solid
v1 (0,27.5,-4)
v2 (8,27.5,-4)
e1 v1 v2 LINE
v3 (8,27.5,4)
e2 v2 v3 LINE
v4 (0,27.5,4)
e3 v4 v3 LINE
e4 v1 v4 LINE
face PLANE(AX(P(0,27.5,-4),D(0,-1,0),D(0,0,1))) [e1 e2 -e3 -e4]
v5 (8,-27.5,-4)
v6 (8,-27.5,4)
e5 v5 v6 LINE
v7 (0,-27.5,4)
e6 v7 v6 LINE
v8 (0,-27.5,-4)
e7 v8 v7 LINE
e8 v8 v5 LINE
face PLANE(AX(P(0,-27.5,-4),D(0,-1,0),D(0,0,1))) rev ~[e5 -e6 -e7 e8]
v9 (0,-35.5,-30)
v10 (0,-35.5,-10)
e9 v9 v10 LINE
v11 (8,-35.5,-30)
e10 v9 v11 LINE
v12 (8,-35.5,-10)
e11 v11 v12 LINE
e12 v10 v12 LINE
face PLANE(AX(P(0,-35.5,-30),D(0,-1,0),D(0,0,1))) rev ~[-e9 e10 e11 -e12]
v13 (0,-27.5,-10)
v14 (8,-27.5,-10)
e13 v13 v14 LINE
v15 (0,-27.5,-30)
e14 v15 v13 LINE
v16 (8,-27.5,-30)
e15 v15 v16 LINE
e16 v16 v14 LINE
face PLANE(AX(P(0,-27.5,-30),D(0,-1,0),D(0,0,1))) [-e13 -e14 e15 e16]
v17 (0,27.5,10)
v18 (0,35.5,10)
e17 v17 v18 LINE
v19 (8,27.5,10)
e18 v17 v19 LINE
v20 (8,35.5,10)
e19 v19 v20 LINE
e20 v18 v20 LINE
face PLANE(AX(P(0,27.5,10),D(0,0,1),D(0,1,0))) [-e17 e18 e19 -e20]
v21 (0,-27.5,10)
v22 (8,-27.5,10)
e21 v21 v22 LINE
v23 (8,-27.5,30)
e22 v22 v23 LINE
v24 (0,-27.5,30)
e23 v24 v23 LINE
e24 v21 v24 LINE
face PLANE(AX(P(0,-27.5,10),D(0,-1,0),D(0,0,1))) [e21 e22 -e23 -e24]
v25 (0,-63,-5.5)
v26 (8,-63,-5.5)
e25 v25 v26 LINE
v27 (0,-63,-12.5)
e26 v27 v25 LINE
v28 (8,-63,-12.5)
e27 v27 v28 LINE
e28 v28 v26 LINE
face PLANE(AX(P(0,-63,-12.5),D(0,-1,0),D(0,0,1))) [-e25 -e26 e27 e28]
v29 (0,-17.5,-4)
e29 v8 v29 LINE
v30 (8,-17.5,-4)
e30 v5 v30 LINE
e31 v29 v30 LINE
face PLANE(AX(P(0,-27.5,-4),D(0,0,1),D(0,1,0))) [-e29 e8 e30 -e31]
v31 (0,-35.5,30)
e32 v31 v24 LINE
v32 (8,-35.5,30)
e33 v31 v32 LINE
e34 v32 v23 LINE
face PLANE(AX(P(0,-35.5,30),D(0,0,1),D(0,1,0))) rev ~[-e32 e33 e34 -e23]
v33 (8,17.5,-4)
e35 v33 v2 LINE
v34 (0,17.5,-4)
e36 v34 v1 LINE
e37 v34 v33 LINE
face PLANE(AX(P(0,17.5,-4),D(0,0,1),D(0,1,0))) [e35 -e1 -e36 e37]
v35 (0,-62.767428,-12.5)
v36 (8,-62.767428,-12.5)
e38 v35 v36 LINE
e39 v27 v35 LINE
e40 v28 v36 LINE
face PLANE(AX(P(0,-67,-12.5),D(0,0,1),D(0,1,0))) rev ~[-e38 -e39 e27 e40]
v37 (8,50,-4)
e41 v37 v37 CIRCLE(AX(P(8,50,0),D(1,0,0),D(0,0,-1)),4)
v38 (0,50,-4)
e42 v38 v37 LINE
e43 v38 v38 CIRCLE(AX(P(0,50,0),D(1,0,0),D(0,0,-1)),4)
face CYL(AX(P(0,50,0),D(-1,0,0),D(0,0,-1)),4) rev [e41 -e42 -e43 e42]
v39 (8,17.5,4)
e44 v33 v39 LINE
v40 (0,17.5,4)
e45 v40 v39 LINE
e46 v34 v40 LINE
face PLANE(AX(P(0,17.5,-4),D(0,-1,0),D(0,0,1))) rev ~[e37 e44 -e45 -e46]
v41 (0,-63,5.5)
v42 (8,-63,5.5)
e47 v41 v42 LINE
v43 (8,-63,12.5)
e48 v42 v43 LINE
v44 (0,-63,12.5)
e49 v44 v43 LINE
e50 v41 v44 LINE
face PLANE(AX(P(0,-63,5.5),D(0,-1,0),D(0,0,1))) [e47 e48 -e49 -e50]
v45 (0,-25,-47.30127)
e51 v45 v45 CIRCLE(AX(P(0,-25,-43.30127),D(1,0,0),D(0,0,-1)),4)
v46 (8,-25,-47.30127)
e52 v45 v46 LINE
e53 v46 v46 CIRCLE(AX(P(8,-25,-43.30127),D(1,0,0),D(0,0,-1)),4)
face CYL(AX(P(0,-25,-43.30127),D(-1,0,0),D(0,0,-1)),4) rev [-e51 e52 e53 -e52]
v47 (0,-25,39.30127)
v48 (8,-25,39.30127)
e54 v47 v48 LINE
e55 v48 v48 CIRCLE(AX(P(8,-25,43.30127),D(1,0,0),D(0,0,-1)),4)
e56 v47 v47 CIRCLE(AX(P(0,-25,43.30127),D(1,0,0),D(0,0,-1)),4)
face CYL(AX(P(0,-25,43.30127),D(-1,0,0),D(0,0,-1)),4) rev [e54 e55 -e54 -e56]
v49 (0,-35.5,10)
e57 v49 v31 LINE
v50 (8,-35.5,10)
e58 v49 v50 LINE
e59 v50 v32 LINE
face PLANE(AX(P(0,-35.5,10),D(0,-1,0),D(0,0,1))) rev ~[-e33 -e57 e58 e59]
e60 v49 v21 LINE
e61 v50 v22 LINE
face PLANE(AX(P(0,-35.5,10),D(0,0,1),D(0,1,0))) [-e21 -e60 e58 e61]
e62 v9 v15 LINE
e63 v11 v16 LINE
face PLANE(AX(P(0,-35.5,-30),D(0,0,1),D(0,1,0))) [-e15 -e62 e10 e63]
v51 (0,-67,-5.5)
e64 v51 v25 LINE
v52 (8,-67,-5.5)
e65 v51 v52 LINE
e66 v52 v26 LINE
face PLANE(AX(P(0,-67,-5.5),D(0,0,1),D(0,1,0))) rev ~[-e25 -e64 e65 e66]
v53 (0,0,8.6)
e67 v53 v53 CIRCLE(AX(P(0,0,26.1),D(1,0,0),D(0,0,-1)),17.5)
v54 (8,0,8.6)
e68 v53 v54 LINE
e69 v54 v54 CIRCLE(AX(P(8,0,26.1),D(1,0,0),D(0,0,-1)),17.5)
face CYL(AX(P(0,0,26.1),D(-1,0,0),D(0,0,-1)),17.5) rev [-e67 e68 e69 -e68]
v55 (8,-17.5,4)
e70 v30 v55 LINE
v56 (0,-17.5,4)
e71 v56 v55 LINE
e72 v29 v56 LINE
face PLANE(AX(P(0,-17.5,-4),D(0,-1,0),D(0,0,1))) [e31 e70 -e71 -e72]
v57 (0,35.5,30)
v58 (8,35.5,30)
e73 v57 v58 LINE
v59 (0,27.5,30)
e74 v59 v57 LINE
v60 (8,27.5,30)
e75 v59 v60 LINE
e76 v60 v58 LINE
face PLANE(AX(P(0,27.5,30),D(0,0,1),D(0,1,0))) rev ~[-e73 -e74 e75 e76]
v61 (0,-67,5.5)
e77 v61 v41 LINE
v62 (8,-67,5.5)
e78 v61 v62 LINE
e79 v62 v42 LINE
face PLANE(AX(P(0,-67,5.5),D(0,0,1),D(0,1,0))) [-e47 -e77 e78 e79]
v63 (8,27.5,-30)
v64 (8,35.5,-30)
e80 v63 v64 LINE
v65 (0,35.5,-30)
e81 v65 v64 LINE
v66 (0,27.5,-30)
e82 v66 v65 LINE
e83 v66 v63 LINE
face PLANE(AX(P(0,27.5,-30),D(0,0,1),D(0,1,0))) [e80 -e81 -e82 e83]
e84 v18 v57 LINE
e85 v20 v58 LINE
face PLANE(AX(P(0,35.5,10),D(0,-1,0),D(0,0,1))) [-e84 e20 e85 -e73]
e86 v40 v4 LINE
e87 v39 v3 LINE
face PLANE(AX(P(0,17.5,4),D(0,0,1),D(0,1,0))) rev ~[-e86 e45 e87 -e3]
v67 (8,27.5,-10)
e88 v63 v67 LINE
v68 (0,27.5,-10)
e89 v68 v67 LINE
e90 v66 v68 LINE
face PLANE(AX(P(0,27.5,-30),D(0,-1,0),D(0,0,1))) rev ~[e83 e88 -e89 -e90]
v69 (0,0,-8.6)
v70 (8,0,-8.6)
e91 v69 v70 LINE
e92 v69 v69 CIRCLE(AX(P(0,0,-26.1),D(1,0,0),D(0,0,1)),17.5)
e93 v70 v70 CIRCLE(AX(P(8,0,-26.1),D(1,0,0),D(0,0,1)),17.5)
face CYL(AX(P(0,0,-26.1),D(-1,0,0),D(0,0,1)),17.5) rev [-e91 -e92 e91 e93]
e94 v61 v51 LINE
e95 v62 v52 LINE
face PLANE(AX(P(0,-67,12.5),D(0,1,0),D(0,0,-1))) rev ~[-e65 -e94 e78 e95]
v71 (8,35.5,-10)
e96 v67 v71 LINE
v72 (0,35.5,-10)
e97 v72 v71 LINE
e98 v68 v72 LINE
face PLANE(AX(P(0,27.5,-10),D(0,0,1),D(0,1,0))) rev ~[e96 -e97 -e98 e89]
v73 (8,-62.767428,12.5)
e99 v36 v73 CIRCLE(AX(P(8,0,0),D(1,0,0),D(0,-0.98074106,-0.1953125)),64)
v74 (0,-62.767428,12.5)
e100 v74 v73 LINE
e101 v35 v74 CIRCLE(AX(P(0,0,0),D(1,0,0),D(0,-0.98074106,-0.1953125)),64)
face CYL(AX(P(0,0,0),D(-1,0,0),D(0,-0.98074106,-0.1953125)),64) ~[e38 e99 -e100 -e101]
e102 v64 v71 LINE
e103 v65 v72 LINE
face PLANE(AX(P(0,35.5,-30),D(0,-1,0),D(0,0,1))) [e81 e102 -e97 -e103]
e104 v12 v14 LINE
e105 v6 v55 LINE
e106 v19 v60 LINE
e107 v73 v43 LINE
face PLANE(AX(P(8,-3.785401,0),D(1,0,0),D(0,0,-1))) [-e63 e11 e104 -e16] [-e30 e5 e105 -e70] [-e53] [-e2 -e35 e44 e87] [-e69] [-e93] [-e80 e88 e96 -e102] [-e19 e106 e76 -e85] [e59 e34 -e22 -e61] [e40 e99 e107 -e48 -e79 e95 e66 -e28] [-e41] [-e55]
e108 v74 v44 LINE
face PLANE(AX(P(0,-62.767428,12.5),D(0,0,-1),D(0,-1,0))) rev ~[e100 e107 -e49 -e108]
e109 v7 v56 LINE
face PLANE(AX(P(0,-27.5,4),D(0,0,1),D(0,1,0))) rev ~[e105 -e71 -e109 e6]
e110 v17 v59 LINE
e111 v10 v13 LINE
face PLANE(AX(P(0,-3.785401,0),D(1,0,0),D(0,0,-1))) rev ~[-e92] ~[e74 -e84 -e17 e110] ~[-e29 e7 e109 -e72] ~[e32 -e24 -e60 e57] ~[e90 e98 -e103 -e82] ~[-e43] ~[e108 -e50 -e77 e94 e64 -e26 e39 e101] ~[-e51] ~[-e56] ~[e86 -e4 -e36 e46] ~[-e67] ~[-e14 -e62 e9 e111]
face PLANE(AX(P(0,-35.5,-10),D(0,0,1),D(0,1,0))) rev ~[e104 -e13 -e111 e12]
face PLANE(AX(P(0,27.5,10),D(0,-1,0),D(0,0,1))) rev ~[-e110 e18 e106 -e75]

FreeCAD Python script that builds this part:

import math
import FreeCAD as App
import Part
import Sketcher
from FreeCAD import Vector

doc = App.newDocument("Part")
params = doc.addObject("Spreadsheet::Sheet", "Params")
for row, (alias, value) in enumerate([
    ("sketch1_diameter", "8 mm"),
    ("sketch1_diameter2", "35 mm"),
    ("sketch1_radius", "64 mm"),
    ("sketch1_height", "25 mm"),
    ("pad1_length", "8 mm"),
    ("sketch2_width", "8 mm"),
    ("sketch2_height", "20 mm"),
    ("sketch3_width", "8 mm"),
    ("sketch3_height", "20 mm"),
    ("sketch4_width", "8 mm"),
    ("sketch4_height", "20 mm"),
    ("sketch5_width", "8 mm"),
    ("sketch5_height", "20 mm"),
    ("sketch6_width", "10 mm"),
    ("sketch6_height", "8 mm"),
    ("sketch7_width", "10 mm"),
    ("sketch7_height", "8 mm"),
    ("sketch8_width", "4 mm"),
    ("sketch8_height", "7 mm"),
    ("sketch9_width", "4 mm"),
    ("sketch9_height", "7 mm"),
], start=1):
    params.set(f"A{row}", alias)
    params.set(f"B{row}", "=" + value)
    params.setAlias(f"B{row}", alias)

body = doc.addObject("PartDesign::Body", "Body")

# Sketch on YZ plane
sketch1 = body.newObject("Sketcher::SketchObject", "Sketch")
sketch1.AttachmentSupport = (doc.getObject("YZ_Plane"), [""])
sketch1.MapMode = "FlatFace"
sketch1.addGeometry(Part.LineSegment(Vector(-62.8, 12.5, 0), Vector(-67, 12.5, 0)), False)
sketch1.addGeometry(Part.LineSegment(Vector(-67, 12.5, 0), Vector(-67, -12.5, 0)), False)
sketch1.addGeometry(Part.LineSegment(Vector(-67, -12.5, 0), Vector(-62.8, -12.5, 0)), False)
sketch1.addGeometry(Part.ArcOfCircle(Part.Circle(Vector(0, 0, 0), Vector(0, 0, 1), 64), math.radians(-169), math.radians(169)), False)
sketch1.addGeometry(Part.Circle(Vector(-25, 43.3, 0), Vector(0, 0, 1), 4), False)
sketch1.addGeometry(Part.Circle(Vector(0, 26.1, 0), Vector(0, 0, 1), 17.5), False)
sketch1.addGeometry(Part.Circle(Vector(-25, -43.3, 0), Vector(0, 0, 1), 4), False)
sketch1.addGeometry(Part.Circle(Vector(0, -26.1, 0), Vector(0, 0, 1), 17.5), False)
sketch1.addGeometry(Part.Circle(Vector(50, 0, 0), Vector(0, 0, 1), 4), False)
sketch1.addConstraint(Sketcher.Constraint("Coincident", 0, 2, 1, 1))
sketch1.addConstraint(Sketcher.Constraint("Coincident", 1, 2, 2, 1))
sketch1.addConstraint(Sketcher.Constraint("Coincident", 2, 2, 3, 1))
sketch1.addConstraint(Sketcher.Constraint("Coincident", 3, 2, 0, 1))
sketch1.addConstraint(Sketcher.Constraint("Horizontal", 0))
sketch1.addConstraint(Sketcher.Constraint("Vertical", 1))
sketch1.addConstraint(Sketcher.Constraint("Horizontal", 2))
sketch1.addConstraint(Sketcher.Constraint("Coincident", 3, 3, -1, 1))
sketch1.addConstraint(Sketcher.Constraint("Equal", 4, 6))
sketch1.addConstraint(Sketcher.Constraint("Equal", 5, 7))
sketch1.addConstraint(Sketcher.Constraint("Equal", 6, 8))
sketch1.addConstraint(Sketcher.Constraint("Symmetric", 5, 3, 7, 3, -1, 1))
sketch1.addConstraint(Sketcher.Constraint("Symmetric", 4, 3, 6, 3, -1))
sketch1.addConstraint(Sketcher.Constraint("PointOnObject", 5, 3, -2))
sketch1.addConstraint(Sketcher.Constraint("PointOnObject", 8, 3, -1))
sketch1.addConstraint(Sketcher.Constraint("Vertical", 2, 2, 3, 2))
sketch1.addConstraint(Sketcher.Constraint("Diameter", 4, 8.0))
sketch1.addConstraint(Sketcher.Constraint("Diameter", 5, 35.0))
sketch1.addConstraint(Sketcher.Constraint("Radius", 3, 64.0))
sketch1.addConstraint(Sketcher.Constraint("DistanceY", 1, 2, 1, 1, 25.0))
sketch1.addConstraint(Sketcher.Constraint("DistanceX", 4, 3, -1, 1, 25.0))
sketch1.addConstraint(Sketcher.Constraint("DistanceX", -1, 1, 8, 3, 50.0))
sketch1.addConstraint(Sketcher.Constraint("DistanceX", 0, 2, -1, 1, 67.0))
sketch1.addConstraint(Sketcher.Constraint("DistanceY", -1, 1, 5, 3, 26.1))
sketch1.addConstraint(Sketcher.Constraint("DistanceY", -1, 1, 4, 3, 43.30127))
sketch1.setExpression("Constraints[16]", "Params.sketch1_diameter")
sketch1.setExpression("Constraints[17]", "Params.sketch1_diameter2")
sketch1.setExpression("Constraints[18]", "Params.sketch1_radius")
sketch1.setExpression("Constraints[19]", "Params.sketch1_height")
pad1 = body.newObject("PartDesign::Pad", "Pad")
pad1.Profile = sketch1
pad1.setExpression("Length", "Params.pad1_length")

# Sketch on YZ plane
sketch2 = body.newObject("Sketcher::SketchObject", "Sketch001")
sketch2.AttachmentSupport = (doc.getObject("YZ_Plane"), [""])
sketch2.MapMode = "FlatFace"
sketch2.addGeometry(Part.LineSegment(Vector(-28, 10, 0), Vector(-36, 10, 0)), False)
sketch2.addGeometry(Part.LineSegment(Vector(-36, 10, 0), Vector(-36, 30, 0)), False)
sketch2.addGeometry(Part.LineSegment(Vector(-36, 30, 0), Vector(-28, 30, 0)), False)
sketch2.addGeometry(Part.LineSegment(Vector(-28, 30, 0), Vector(-28, 10, 0)), False)
sketch2.addConstraint(Sketcher.Constraint("Coincident", 0, 2, 1, 1))
sketch2.addConstraint(Sketcher.Constraint("Coincident", 1, 2, 2, 1))
sketch2.addConstraint(Sketcher.Constraint("Coincident", 2, 2, 3, 1))
sketch2.addConstraint(Sketcher.Constraint("Coincident", 3, 2, 0, 1))
sketch2.addConstraint(Sketcher.Constraint("Horizontal", 0))
sketch2.addConstraint(Sketcher.Constraint("Vertical", 1))
sketch2.addConstraint(Sketcher.Constraint("Horizontal", 2))
sketch2.addConstraint(Sketcher.Constraint("Vertical", 3))
sketch2.addConstraint(Sketcher.Constraint("DistanceX", 0, 2, 0, 1, 8.0))
sketch2.addConstraint(Sketcher.Constraint("DistanceY", 1, 1, 1, 2, 20.0))
sketch2.addConstraint(Sketcher.Constraint("DistanceY", -1, 1, 0, 2, 10.0))
sketch2.addConstraint(Sketcher.Constraint("DistanceX", 0, 2, -1, 1, 35.5))
sketch2.setExpression("Constraints[8]", "Params.sketch2_width")
sketch2.setExpression("Constraints[9]", "Params.sketch2_height")
pocket1 = body.newObject("PartDesign::Pocket", "Pocket")
pocket1.Profile = sketch2
pocket1.Type = "UpToFirst"
pocket1.Reversed = True

# Sketch on YZ plane
sketch3 = body.newObject("Sketcher::SketchObject", "Sketch002")
sketch3.AttachmentSupport = (doc.getObject("YZ_Plane"), [""])
sketch3.MapMode = "FlatFace"
sketch3.addGeometry(Part.LineSegment(Vector(-28, -30, 0), Vector(-36, -30, 0)), False)
sketch3.addGeometry(Part.LineSegment(Vector(-36, -30, 0), Vector(-36, -10, 0)), False)
sketch3.addGeometry(Part.LineSegment(Vector(-36, -10, 0), Vector(-28, -10, 0)), False)
sketch3.addGeometry(Part.LineSegment(Vector(-28, -10, 0), Vector(-28, -30, 0)), False)
sketch3.addConstraint(Sketcher.Constraint("Coincident", 0, 2, 1, 1))
sketch3.addConstraint(Sketcher.Constraint("Coincident", 1, 2, 2, 1))
sketch3.addConstraint(Sketcher.Constraint("Coincident", 2, 2, 3, 1))
sketch3.addConstraint(Sketcher.Constraint("Coincident", 3, 2, 0, 1))
sketch3.addConstraint(Sketcher.Constraint("Horizontal", 0))
sketch3.addConstraint(Sketcher.Constraint("Vertical", 1))
sketch3.addConstraint(Sketcher.Constraint("Horizontal", 2))
sketch3.addConstraint(Sketcher.Constraint("Vertical", 3))
sketch3.addConstraint(Sketcher.Constraint("DistanceX", 0, 2, 0, 1, 8.0))
sketch3.addConstraint(Sketcher.Constraint("DistanceY", 1, 1, 1, 2, 20.0))
sketch3.addConstraint(Sketcher.Constraint("DistanceY", 0, 2, -1, 1, 30.0))
sketch3.addConstraint(Sketcher.Constraint("DistanceX", 0, 2, -1, 1, 35.5))
sketch3.setExpression("Constraints[8]", "Params.sketch3_width")
sketch3.setExpression("Constraints[9]", "Params.sketch3_height")
pocket2 = body.newObject("PartDesign::Pocket", "Pocket001")
pocket2.Profile = sketch3
pocket2.Type = "UpToFirst"
pocket2.Reversed = True

# Sketch on YZ plane
sketch4 = body.newObject("Sketcher::SketchObject", "Sketch003")
sketch4.AttachmentSupport = (doc.getObject("YZ_Plane"), [""])
sketch4.MapMode = "FlatFace"
sketch4.addGeometry(Part.LineSegment(Vector(36, 10, 0), Vector(28, 10, 0)), False)
sketch4.addGeometry(Part.LineSegment(Vector(28, 10, 0), Vector(28, 30, 0)), False)
sketch4.addGeometry(Part.LineSegment(Vector(28, 30, 0), Vector(36, 30, 0)), False)
sketch4.addGeometry(Part.LineSegment(Vector(36, 30, 0), Vector(36, 10, 0)), False)
sketch4.addConstraint(Sketcher.Constraint("Coincident", 0, 2, 1, 1))
sketch4.addConstraint(Sketcher.Constraint("Coincident", 1, 2, 2, 1))
sketch4.addConstraint(Sketcher.Constraint("Coincident", 2, 2, 3, 1))
sketch4.addConstraint(Sketcher.Constraint("Coincident", 3, 2, 0, 1))
sketch4.addConstraint(Sketcher.Constraint("Horizontal", 0))
sketch4.addConstraint(Sketcher.Constraint("Vertical", 1))
sketch4.addConstraint(Sketcher.Constraint("Horizontal", 2))
sketch4.addConstraint(Sketcher.Constraint("Vertical", 3))
sketch4.addConstraint(Sketcher.Constraint("DistanceX", 0, 2, 0, 1, 8.0))
sketch4.addConstraint(Sketcher.Constraint("DistanceY", 1, 1, 1, 2, 20.0))
sketch4.addConstraint(Sketcher.Constraint("DistanceY", -1, 1, 0, 2, 10.0))
sketch4.addConstraint(Sketcher.Constraint("DistanceX", -1, 1, 0, 2, 27.5))
sketch4.setExpression("Constraints[8]", "Params.sketch4_width")
sketch4.setExpression("Constraints[9]", "Params.sketch4_height")
pocket3 = body.newObject("PartDesign::Pocket", "Pocket002")
pocket3.Profile = sketch4
pocket3.Type = "UpToFirst"
pocket3.Reversed = True

# Sketch on YZ plane
sketch5 = body.newObject("Sketcher::SketchObject", "Sketch004")
sketch5.AttachmentSupport = (doc.getObject("YZ_Plane"), [""])
sketch5.MapMode = "FlatFace"
sketch5.addGeometry(Part.LineSegment(Vector(36, -30, 0), Vector(28, -30, 0)), False)
sketch5.addGeometry(Part.LineSegment(Vector(28, -30, 0), Vector(28, -10, 0)), False)
sketch5.addGeometry(Part.LineSegment(Vector(28, -10, 0), Vector(36, -10, 0)), False)
sketch5.addGeometry(Part.LineSegment(Vector(36, -10, 0), Vector(36, -30, 0)), False)
sketch5.addConstraint(Sketcher.Constraint("Coincident", 0, 2, 1, 1))
sketch5.addConstraint(Sketcher.Constraint("Coincident", 1, 2, 2, 1))
sketch5.addConstraint(Sketcher.Constraint("Coincident", 2, 2, 3, 1))
sketch5.addConstraint(Sketcher.Constraint("Coincident", 3, 2, 0, 1))
sketch5.addConstraint(Sketcher.Constraint("Horizontal", 0))
sketch5.addConstraint(Sketcher.Constraint("Vertical", 1))
sketch5.addConstraint(Sketcher.Constraint("Horizontal", 2))
sketch5.addConstraint(Sketcher.Constraint("Vertical", 3))
sketch5.addConstraint(Sketcher.Constraint("DistanceX", 0, 2, 0, 1, 8.0))
sketch5.addConstraint(Sketcher.Constraint("DistanceY", 1, 1, 1, 2, 20.0))
sketch5.addConstraint(Sketcher.Constraint("DistanceY", 0, 2, -1, 1, 30.0))
sketch5.addConstraint(Sketcher.Constraint("DistanceX", -1, 1, 0, 2, 27.5))
sketch5.setExpression("Constraints[8]", "Params.sketch5_width")
sketch5.setExpression("Constraints[9]", "Params.sketch5_height")
pocket4 = body.newObject("PartDesign::Pocket", "Pocket003")
pocket4.Profile = sketch5
pocket4.Type = "UpToFirst"
pocket4.Reversed = True

# Sketch on YZ plane
sketch6 = body.newObject("Sketcher::SketchObject", "Sketch005")
sketch6.AttachmentSupport = (doc.getObject("YZ_Plane"), [""])
sketch6.MapMode = "FlatFace"
sketch6.addGeometry(Part.LineSegment(Vector(28, -4, 0), Vector(18, -4, 0)), False)
sketch6.addGeometry(Part.LineSegment(Vector(18, -4, 0), Vector(18, 4, 0)), False)
sketch6.addGeometry(Part.LineSegment(Vector(18, 4, 0), Vector(28, 4, 0)), False)
sketch6.addGeometry(Part.LineSegment(Vector(28, 4, 0), Vector(28, -4, 0)), False)
sketch6.addConstraint(Sketcher.Constraint("Coincident", 0, 2, 1, 1))
sketch6.addConstraint(Sketcher.Constraint("Coincident", 1, 2, 2, 1))
sketch6.addConstraint(Sketcher.Constraint("Coincident", 2, 2, 3, 1))
sketch6.addConstraint(Sketcher.Constraint("Coincident", 3, 2, 0, 1))
sketch6.addConstraint(Sketcher.Constraint("Horizontal", 0))
sketch6.addConstraint(Sketcher.Constraint("Vertical", 1))
sketch6.addConstraint(Sketcher.Constraint("Horizontal", 2))
sketch6.addConstraint(Sketcher.Constraint("Vertical", 3))
sketch6.addConstraint(Sketcher.Constraint("DistanceX", 0, 2, 0, 1, 10.0))
sketch6.addConstraint(Sketcher.Constraint("DistanceY", 1, 1, 1, 2, 8.0))
sketch6.addConstraint(Sketcher.Constraint("DistanceY", 0, 2, -1, 1, 4.0))
sketch6.addConstraint(Sketcher.Constraint("DistanceX", -1, 1, 0, 2, 17.5))
sketch6.setExpression("Constraints[8]", "Params.sketch6_width")
sketch6.setExpression("Constraints[9]", "Params.sketch6_height")
pocket5 = body.newObject("PartDesign::Pocket", "Pocket004")
pocket5.Profile = sketch6
pocket5.Type = "UpToFirst"
pocket5.Reversed = True

# Sketch on YZ plane
sketch7 = body.newObject("Sketcher::SketchObject", "Sketch006")
sketch7.AttachmentSupport = (doc.getObject("YZ_Plane"), [""])
sketch7.MapMode = "FlatFace"
sketch7.addGeometry(Part.LineSegment(Vector(-18, -4, 0), Vector(-28, -4, 0)), False)
sketch7.addGeometry(Part.LineSegment(Vector(-28, -4, 0), Vector(-28, 4, 0)), False)
sketch7.addGeometry(Part.LineSegment(Vector(-28, 4, 0), Vector(-18, 4, 0)), False)
sketch7.addGeometry(Part.LineSegment(Vector(-18, 4, 0), Vector(-18, -4, 0)), False)
sketch7.addConstraint(Sketcher.Constraint("Coincident", 0, 2, 1, 1))
sketch7.addConstraint(Sketcher.Constraint("Coincident", 1, 2, 2, 1))
sketch7.addConstraint(Sketcher.Constraint("Coincident", 2, 2, 3, 1))
sketch7.addConstraint(Sketcher.Constraint("Coincident", 3, 2, 0, 1))
sketch7.addConstraint(Sketcher.Constraint("Horizontal", 0))
sketch7.addConstraint(Sketcher.Constraint("Vertical", 1))
sketch7.addConstraint(Sketcher.Constraint("Horizontal", 2))
sketch7.addConstraint(Sketcher.Constraint("Vertical", 3))
sketch7.addConstraint(Sketcher.Constraint("DistanceX", 0, 2, 0, 1, 10.0))
sketch7.addConstraint(Sketcher.Constraint("DistanceY", 1, 1, 1, 2, 8.0))
sketch7.addConstraint(Sketcher.Constraint("DistanceY", 0, 2, -1, 1, 4.0))
sketch7.addConstraint(Sketcher.Constraint("DistanceX", 0, 2, -1, 1, 27.5))
sketch7.setExpression("Constraints[8]", "Params.sketch7_width")
sketch7.setExpression("Constraints[9]", "Params.sketch7_height")
pocket6 = body.newObject("PartDesign::Pocket", "Pocket005")
pocket6.Profile = sketch7
pocket6.Type = "UpToFirst"
pocket6.Reversed = True

# Sketch on YZ plane
sketch8 = body.newObject("Sketcher::SketchObject", "Sketch007")
sketch8.AttachmentSupport = (doc.getObject("YZ_Plane"), [""])
sketch8.MapMode = "FlatFace"
sketch8.addGeometry(Part.LineSegment(Vector(-63, 5.5, 0), Vector(-67, 5.5, 0)), False)
sketch8.addGeometry(Part.LineSegment(Vector(-67, 5.5, 0), Vector(-67, 12.5, 0)), False)
sketch8.addGeometry(Part.LineSegment(Vector(-67, 12.5, 0), Vector(-63, 12.5, 0)), False)
sketch8.addGeometry(Part.LineSegment(Vector(-63, 12.5, 0), Vector(-63, 5.5, 0)), False)
sketch8.addConstraint(Sketcher.Constraint("Coincident", 0, 2, 1, 1))
sketch8.addConstraint(Sketcher.Constraint("Coincident", 1, 2, 2, 1))
sketch8.addConstraint(Sketcher.Constraint("Coincident", 2, 2, 3, 1))
sketch8.addConstraint(Sketcher.Constraint("Coincident", 3, 2, 0, 1))
sketch8.addConstraint(Sketcher.Constraint("Horizontal", 0))
sketch8.addConstraint(Sketcher.Constraint("Vertical", 1))
sketch8.addConstraint(Sketcher.Constraint("Horizontal", 2))
sketch8.addConstraint(Sketcher.Constraint("Vertical", 3))
sketch8.addConstraint(Sketcher.Constraint("DistanceX", 0, 2, 0, 1, 4.0))
sketch8.addConstraint(Sketcher.Constraint("DistanceY", 1, 1, 1, 2, 7.0))
sketch8.addConstraint(Sketcher.Constraint("DistanceX", 0, 2, -1, 1, 67.0))
sketch8.addConstraint(Sketcher.Constraint("DistanceY", -1, 1, 0, 2, 5.5))
sketch8.setExpression("Constraints[8]", "Params.sketch8_width")
sketch8.setExpression("Constraints[9]", "Params.sketch8_height")
pocket7 = body.newObject("PartDesign::Pocket", "Pocket006")
pocket7.Profile = sketch8
pocket7.Type = "UpToFirst"
pocket7.Reversed = True

# Sketch on YZ plane
sketch9 = body.newObject("Sketcher::SketchObject", "Sketch008")
sketch9.AttachmentSupport = (doc.getObject("YZ_Plane"), [""])
sketch9.MapMode = "FlatFace"
sketch9.addGeometry(Part.LineSegment(Vector(-63, -12.5, 0), Vector(-67, -12.5, 0)), False)
sketch9.addGeometry(Part.LineSegment(Vector(-67, -12.5, 0), Vector(-67, -5.5, 0)), False)
sketch9.addGeometry(Part.LineSegment(Vector(-67, -5.5, 0), Vector(-63, -5.5, 0)), False)
sketch9.addGeometry(Part.LineSegment(Vector(-63, -5.5, 0), Vector(-63, -12.5, 0)), False)
sketch9.addConstraint(Sketcher.Constraint("Coincident", 0, 2, 1, 1))
sketch9.addConstraint(Sketcher.Constraint("Coincident", 1, 2, 2, 1))
sketch9.addConstraint(Sketcher.Constraint("Coincident", 2, 2, 3, 1))
sketch9.addConstraint(Sketcher.Constraint("Coincident", 3, 2, 0, 1))
sketch9.addConstraint(Sketcher.Constraint("Horizontal", 0))
sketch9.addConstraint(Sketcher.Constraint("Vertical", 1))
sketch9.addConstraint(Sketcher.Constraint("Horizontal", 2))
sketch9.addConstraint(Sketcher.Constraint("Vertical", 3))
sketch9.addConstraint(Sketcher.Constraint("DistanceX", 0, 2, 0, 1, 4.0))
sketch9.addConstraint(Sketcher.Constraint("DistanceY", 1, 1, 1, 2, 7.0))
sketch9.addConstraint(Sketcher.Constraint("DistanceX", 0, 2, -1, 1, 67.0))
sketch9.addConstraint(Sketcher.Constraint("DistanceY", 0, 2, -1, 1, 12.5))
sketch9.setExpression("Constraints[8]", "Params.sketch9_width")
sketch9.setExpression("Constraints[9]", "Params.sketch9_height")
pocket8 = body.newObject("PartDesign::Pocket", "Pocket007")
pocket8.Profile = sketch9
pocket8.Type = "UpToFirst"
pocket8.Reversed = True

doc.recompute()
